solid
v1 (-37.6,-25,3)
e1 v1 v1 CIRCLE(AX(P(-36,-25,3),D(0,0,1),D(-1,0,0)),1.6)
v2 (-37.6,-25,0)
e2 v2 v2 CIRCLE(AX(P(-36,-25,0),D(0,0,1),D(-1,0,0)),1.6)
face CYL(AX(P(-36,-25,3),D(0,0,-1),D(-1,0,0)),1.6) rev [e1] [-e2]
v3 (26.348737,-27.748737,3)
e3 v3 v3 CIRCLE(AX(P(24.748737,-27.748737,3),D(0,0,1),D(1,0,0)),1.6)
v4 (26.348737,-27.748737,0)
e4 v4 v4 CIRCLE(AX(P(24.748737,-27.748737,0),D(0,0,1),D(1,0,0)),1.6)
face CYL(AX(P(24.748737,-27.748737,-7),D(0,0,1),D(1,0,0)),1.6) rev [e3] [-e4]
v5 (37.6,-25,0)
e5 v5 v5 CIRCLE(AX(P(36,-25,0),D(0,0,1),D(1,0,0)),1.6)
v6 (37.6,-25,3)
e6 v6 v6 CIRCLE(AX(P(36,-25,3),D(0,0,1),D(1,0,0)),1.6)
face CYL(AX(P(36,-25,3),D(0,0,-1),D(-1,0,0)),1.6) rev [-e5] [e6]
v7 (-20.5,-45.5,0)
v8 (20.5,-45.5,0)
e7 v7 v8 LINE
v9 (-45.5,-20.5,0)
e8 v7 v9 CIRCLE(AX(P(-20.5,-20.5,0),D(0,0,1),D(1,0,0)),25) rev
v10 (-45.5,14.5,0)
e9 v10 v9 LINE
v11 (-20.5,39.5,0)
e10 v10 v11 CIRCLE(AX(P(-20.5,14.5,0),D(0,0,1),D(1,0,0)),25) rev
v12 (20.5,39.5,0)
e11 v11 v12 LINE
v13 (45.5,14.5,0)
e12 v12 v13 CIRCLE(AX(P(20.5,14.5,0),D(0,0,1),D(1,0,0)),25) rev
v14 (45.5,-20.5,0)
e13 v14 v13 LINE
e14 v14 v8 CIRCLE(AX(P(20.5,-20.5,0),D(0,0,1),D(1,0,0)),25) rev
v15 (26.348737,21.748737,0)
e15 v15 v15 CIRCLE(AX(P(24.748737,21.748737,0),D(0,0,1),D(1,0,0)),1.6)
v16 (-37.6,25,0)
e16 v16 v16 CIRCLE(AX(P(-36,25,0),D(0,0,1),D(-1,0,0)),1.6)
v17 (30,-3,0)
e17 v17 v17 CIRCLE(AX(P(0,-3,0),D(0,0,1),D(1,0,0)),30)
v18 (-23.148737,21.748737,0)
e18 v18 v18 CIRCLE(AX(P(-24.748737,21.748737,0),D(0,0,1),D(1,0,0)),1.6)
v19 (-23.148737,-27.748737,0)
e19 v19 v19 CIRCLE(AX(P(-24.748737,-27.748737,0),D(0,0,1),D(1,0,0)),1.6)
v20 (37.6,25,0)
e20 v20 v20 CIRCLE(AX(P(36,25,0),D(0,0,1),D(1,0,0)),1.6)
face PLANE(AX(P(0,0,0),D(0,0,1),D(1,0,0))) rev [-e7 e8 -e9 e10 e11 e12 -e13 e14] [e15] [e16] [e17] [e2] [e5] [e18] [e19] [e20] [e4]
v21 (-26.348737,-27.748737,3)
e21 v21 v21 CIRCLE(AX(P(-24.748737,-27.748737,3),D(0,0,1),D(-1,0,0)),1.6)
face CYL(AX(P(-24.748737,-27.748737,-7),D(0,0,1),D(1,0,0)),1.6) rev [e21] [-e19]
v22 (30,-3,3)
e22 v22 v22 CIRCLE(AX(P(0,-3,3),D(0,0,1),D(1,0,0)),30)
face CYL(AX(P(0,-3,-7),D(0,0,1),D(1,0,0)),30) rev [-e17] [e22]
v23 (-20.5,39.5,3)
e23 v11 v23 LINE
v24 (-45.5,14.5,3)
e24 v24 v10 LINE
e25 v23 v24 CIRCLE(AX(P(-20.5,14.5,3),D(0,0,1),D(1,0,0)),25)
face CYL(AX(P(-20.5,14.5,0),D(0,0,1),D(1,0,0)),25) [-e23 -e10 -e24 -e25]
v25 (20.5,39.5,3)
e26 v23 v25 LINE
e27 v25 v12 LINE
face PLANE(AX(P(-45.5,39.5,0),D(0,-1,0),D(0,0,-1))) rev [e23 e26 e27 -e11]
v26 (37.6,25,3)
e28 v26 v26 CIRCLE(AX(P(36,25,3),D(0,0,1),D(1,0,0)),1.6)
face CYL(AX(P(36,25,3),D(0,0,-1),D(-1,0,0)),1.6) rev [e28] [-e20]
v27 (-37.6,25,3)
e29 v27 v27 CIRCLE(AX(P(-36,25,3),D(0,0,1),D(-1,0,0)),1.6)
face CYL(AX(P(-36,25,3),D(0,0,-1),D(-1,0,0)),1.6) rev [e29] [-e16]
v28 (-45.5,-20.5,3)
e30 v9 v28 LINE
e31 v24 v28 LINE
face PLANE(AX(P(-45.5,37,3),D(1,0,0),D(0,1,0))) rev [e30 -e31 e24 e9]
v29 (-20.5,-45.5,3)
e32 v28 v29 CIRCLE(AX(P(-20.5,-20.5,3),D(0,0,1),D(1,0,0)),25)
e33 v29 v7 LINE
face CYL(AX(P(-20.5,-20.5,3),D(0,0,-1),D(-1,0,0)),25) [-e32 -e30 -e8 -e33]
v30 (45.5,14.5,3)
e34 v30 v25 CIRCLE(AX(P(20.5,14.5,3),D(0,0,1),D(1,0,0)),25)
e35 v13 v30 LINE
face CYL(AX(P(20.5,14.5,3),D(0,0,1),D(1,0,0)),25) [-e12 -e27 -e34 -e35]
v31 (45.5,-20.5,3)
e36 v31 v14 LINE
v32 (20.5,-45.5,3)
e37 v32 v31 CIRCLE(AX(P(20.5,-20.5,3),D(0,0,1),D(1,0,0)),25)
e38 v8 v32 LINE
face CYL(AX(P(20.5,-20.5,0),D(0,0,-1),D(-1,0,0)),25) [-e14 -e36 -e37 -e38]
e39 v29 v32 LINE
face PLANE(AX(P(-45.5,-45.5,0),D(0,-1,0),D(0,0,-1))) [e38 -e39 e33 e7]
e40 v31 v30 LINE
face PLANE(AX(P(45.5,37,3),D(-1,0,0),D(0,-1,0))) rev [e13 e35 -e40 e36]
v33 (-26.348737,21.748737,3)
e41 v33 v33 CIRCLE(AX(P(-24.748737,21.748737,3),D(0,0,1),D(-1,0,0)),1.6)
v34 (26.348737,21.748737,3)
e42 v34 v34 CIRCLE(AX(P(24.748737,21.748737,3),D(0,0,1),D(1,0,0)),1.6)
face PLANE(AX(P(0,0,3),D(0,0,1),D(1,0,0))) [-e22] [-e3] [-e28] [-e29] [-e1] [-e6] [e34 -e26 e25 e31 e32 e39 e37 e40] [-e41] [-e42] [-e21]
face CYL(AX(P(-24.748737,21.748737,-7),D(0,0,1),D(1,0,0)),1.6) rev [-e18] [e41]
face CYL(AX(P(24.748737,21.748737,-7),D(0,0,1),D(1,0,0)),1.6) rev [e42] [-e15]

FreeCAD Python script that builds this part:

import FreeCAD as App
import Part
import Sketcher
Q = App.Units.Quantity


def edges_at(feature, points):
    """Names of the edges that pass closest to the given points."""
    edges = feature.Shape.Edges
    near = lambda p: min(range(len(edges)), key=lambda i: edges[i].distToShape(Part.Vertex(*p))[0])
    return sorted({f"Edge{near(p) + 1}" for p in points})


def add_polygon(sketch, points):
    """Adds a closed chain of lines whose ends are joined by coincident constraints."""
    first, n = sketch.GeometryCount, len(points)
    for a, b in zip(points, points[1:] + points[:1]):
        sketch.addGeometry(Part.LineSegment(App.Vector(*a, 0), App.Vector(*b, 0)), False)
    for i in range(n):
        sketch.addConstraint(Sketcher.Constraint("Coincident", first + i, 2, first + (i + 1) % n, 1))

doc = App.newDocument("Part")
params = doc.addObject("Spreadsheet::Sheet", "Params")
for row, (alias, value) in enumerate([
    ("sketch1_diameter", "3.2 mm"),
    ("sketch1_width", "91 mm"),
    ("sketch1_height", "74 mm"),
    ("pad1_length", "3 mm"),
    ("sketch2_diameter", "60 mm"),
    ("sketch2_diameter2", "3.2 mm"),
    ("pocket1_length", "10 mm"),
    ("sketch3_width", "91 mm"),
    ("sketch3_height", "6 mm"),
    ("pocket2_length", "10 mm"),
    ("sketch4_width", "91 mm"),
    ("sketch4_height", "8.5 mm"),
    ("sketch4_height2", "14.5 mm"),
    ("pad2_length", "3 mm"),
    ("sketch5_width", "91 mm"),
    ("sketch5_height", "6 mm"),
    ("pocket3_length", "3 mm"),
    ("fillet_radius", "25 mm"),
], start=1):
    params.set(f"A{row}", alias)
    params.set(f"B{row}", "=" + value)
    params.setAlias(f"B{row}", alias)

body = doc.addObject("PartDesign::Body", "Body")

# Sketch on XY plane
sketch1 = doc.addObject("Sketcher::SketchObject", "Sketch")
body.addObject(sketch1)
sketch1.AttachmentSupport = (doc.XY_Plane, [""])
sketch1.MapMode = "FlatFace"
add_polygon(sketch1, [(-45.5, 37), (-45.5, -37), (45.5, -37), (45.5, 37)])  # lines 0-3
sketch1.addGeometry(Part.Circle(App.Vector(-36, -25, 0), App.Vector(0, 0, 1), 1.6), False)  # 4
sketch1.addGeometry(Part.Circle(App.Vector(36, -25, 0), App.Vector(0, 0, 1), 1.6), False)  # 5
sketch1.addGeometry(Part.Circle(App.Vector(-36, 25, 0), App.Vector(0, 0, 1), 1.6), False)  # 6
sketch1.addGeometry(Part.Circle(App.Vector(36, 25, 0), App.Vector(0, 0, 1), 1.6), False)  # 7
sketch1.addConstraint([
    Sketcher.Constraint("Vertical", 0),
    Sketcher.Constraint("Horizontal", 1),
    Sketcher.Constraint("Vertical", 2),
    Sketcher.Constraint("Horizontal", 3),
    Sketcher.Constraint("Equal", 4, 5),
    Sketcher.Constraint("Equal", 5, 6),
    Sketcher.Constraint("Equal", 6, 7),
    Sketcher.Constraint("Symmetric", 5, 3, 6, 3, -1, 1),
    Sketcher.Constraint("Symmetric", 4, 3, 7, 3, -1, 1),
    Sketcher.Constraint("Symmetric", 0, 2, 2, 2, -1, 1),
    Sketcher.Constraint("Symmetric", 4, 3, 5, 3, -2),
    Sketcher.Constraint("Diameter", 4, Q("3.2 mm")),
    Sketcher.Constraint("DistanceX", 1, 1, 1, 2, Q("91 mm")),
    Sketcher.Constraint("DistanceY", 0, 2, 0, 1, Q("74 mm")),
    Sketcher.Constraint("DistanceX", 4, 3, -1, 1, Q("36 mm")),
    Sketcher.Constraint("DistanceY", 4, 3, -1, 1, Q("25 mm")),
])
sketch1.setExpression("Constraints[15]", "Params.sketch1_diameter")
sketch1.setExpression("Constraints[16]", "Params.sketch1_width")
sketch1.setExpression("Constraints[17]", "Params.sketch1_height")
pad1 = doc.addObject("PartDesign::Pad", "Pad")
body.addObject(pad1)
pad1.Profile = sketch1
pad1.setExpression("Length", "Params.pad1_length")

# Sketch on XY plane
sketch2 = doc.addObject("Sketcher::SketchObject", "Sketch001")
body.addObject(sketch2)
sketch2.AttachmentSupport = (doc.XY_Plane, [""])
sketch2.MapMode = "FlatFace"
sketch2.AttachmentOffset = App.Placement(App.Vector(0, 0, 3), App.Rotation())
sketch2.addGeometry([
    Part.Circle(App.Vector(0, -3, 0), App.Vector(0, 0, 1), 30),  # 0
    Part.Circle(App.Vector(24.748737, -27.748737, 0), App.Vector(0, 0, 1), 1.6),  # 1
    Part.Circle(App.Vector(24.748737, 21.748737, 0), App.Vector(0, 0, 1), 1.6),  # 2
    Part.Circle(App.Vector(-24.748737, -27.748737, 0), App.Vector(0, 0, 1), 1.6),  # 3
    Part.Circle(App.Vector(-24.748737, 21.748737, 0), App.Vector(0, 0, 1), 1.6),  # 4
], False)
sketch2.addConstraint([
    Sketcher.Constraint("Equal", 1, 2),
    Sketcher.Constraint("Equal", 2, 3),
    Sketcher.Constraint("Equal", 3, 4),
    Sketcher.Constraint("Symmetric", 1, 3, 3, 3, -2),
    Sketcher.Constraint("Symmetric", 2, 3, 4, 3, -2),
    Sketcher.Constraint("PointOnObject", 0, 3, -2),
    Sketcher.Constraint("Vertical", 1, 3, 2, 3),
    Sketcher.Constraint("Diameter", 0, Q("60 mm")),
    Sketcher.Constraint("Diameter", 1, Q("3.2 mm")),
    Sketcher.Constraint("DistanceY", 0, 3, -1, 1, Q("3 mm")),
    Sketcher.Constraint("DistanceX", -1, 1, 1, 3, Q("24.748737 mm")),
    Sketcher.Constraint("DistanceY", 1, 3, -1, 1, Q("27.748737 mm")),
    Sketcher.Constraint("DistanceY", -1, 1, 2, 3, Q("21.748737 mm")),
])
sketch2.setExpression("Constraints[7]", "Params.sketch2_diameter")
sketch2.setExpression("Constraints[8]", "Params.sketch2_diameter2")
pocket1 = doc.addObject("PartDesign::Pocket", "Pocket")
body.addObject(pocket1)
pocket1.Profile = sketch2
pocket1.setExpression("Length", "Params.pocket1_length")

# Sketch on XY plane
sketch3 = doc.addObject("Sketcher::SketchObject", "Sketch002")
body.addObject(sketch3)
sketch3.AttachmentSupport = (doc.XY_Plane, [""])
sketch3.MapMode = "FlatFace"
sketch3.AttachmentOffset = App.Placement(App.Vector(0, 0, 3), App.Rotation())
add_polygon(sketch3, [(-45.5, 37), (-45.5, 31), (45.5, 31), (45.5, 37)])  # lines 0-3
sketch3.addConstraint([
    Sketcher.Constraint("Vertical", 0),
    Sketcher.Constraint("Horizontal", 1),
    Sketcher.Constraint("Vertical", 2),
    Sketcher.Constraint("Horizontal", 3),
    Sketcher.Constraint("DistanceX", 1, 1, 1, 2, Q("91 mm")),
    Sketcher.Constraint("DistanceY", 0, 2, 0, 1, Q("6 mm")),
    Sketcher.Constraint("DistanceY", -1, 1, 0, 2, Q("31 mm")),
    Sketcher.Constraint("DistanceX", 0, 2, -1, 1, Q("45.5 mm")),
])
sketch3.setExpression("Constraints[8]", "Params.sketch3_width")
sketch3.setExpression("Constraints[9]", "Params.sketch3_height")
pocket2 = doc.addObject("PartDesign::Pocket", "Pocket001")
body.addObject(pocket2)
pocket2.Profile = sketch3
pocket2.setExpression("Length", "Params.pocket2_length")

# Sketch on XY plane
sketch4 = doc.addObject("Sketcher::SketchObject", "Sketch003")
body.addObject(sketch4)
sketch4.AttachmentSupport = (doc.XY_Plane, [""])
sketch4.MapMode = "FlatFace"
sketch4.AttachmentOffset = App.Placement(App.Vector(0, 0, 3), App.Rotation())
add_polygon(sketch4, [(-45.5, -37), (-45.5, -45.5), (45.5, -45.5), (45.5, -37)])  # lines 0-3
add_polygon(sketch4, [(-45.5, 45.5), (-45.5, 31), (45.5, 31), (45.5, 45.5)])  # lines 4-7
sketch4.addConstraint([
    Sketcher.Constraint("Vertical", 0),
    Sketcher.Constraint("Horizontal", 1),
    Sketcher.Constraint("Vertical", 2),
    Sketcher.Constraint("Horizontal", 3),
    Sketcher.Constraint("Vertical", 4),
    Sketcher.Constraint("Horizontal", 5),
    Sketcher.Constraint("Vertical", 6),
    Sketcher.Constraint("Horizontal", 7),
    Sketcher.Constraint("Symmetric", 0, 2, 6, 2, -1, 1),
    Sketcher.Constraint("Vertical", 3, 2, 4, 2),
    Sketcher.Constraint("Vertical", 2, 2, 5, 2),
    Sketcher.Constraint("DistanceX", 1, 1, 1, 2, Q("91 mm")),
    Sketcher.Constraint("DistanceY", 0, 2, 0, 1, Q("8.5 mm")),
    Sketcher.Constraint("DistanceY", 4, 2, 4, 1, Q("14.5 mm")),
    Sketcher.Constraint("DistanceY", 2, 2, -1, 1, Q("37 mm")),
])
sketch4.setExpression("Constraints[19]", "Params.sketch4_width")
sketch4.setExpression("Constraints[20]", "Params.sketch4_height")
sketch4.setExpression("Constraints[21]", "Params.sketch4_height2")
pad2 = doc.addObject("PartDesign::Pad", "Pad001")
body.addObject(pad2)
pad2.Profile = sketch4
pad2.setExpression("Length", "Params.pad2_length")
pad2.Reversed = True

# Sketch on XY plane
sketch5 = doc.addObject("Sketcher::SketchObject", "Sketch004")
body.addObject(sketch5)
sketch5.AttachmentSupport = (doc.XY_Plane, [""])
sketch5.MapMode = "FlatFace"
sketch5.AttachmentOffset = App.Placement(App.Vector(0, 0, 3), App.Rotation())
add_polygon(sketch5, [(-45.5, 45.5), (-45.5, 39.5), (45.5, 39.5), (45.5, 45.5)])  # lines 0-3
sketch5.addConstraint([
    Sketcher.Constraint("Vertical", 0),
    Sketcher.Constraint("Horizontal", 1),
    Sketcher.Constraint("Vertical", 2),
    Sketcher.Constraint("Horizontal", 3),
    Sketcher.Constraint("DistanceX", 1, 1, 1, 2, Q("91 mm")),
    Sketcher.Constraint("DistanceY", 0, 2, 0, 1, Q("6 mm")),
    Sketcher.Constraint("DistanceX", 0, 2, -1, 1, Q("45.5 mm")),
    Sketcher.Constraint("DistanceY", -1, 1, 0, 2, Q("39.5 mm")),
])
sketch5.setExpression("Constraints[8]", "Params.sketch5_width")
sketch5.setExpression("Constraints[9]", "Params.sketch5_height")
pocket3 = doc.addObject("PartDesign::Pocket", "Pocket002")
body.addObject(pocket3)
pocket3.Profile = sketch5
pocket3.setExpression("Length", "Params.pocket3_length")
doc.recompute()

fillet = doc.addObject("PartDesign::Fillet", "Fillet")
body.addObject(fillet)
fillet.Base = (pocket3, edges_at(pocket3, [
    (-45.5, 39.5, 1.5),
    (45.5, 39.5, 1.5),
    (-45.5, -45.5, 1.5),
    (45.5, -45.5, 1.5),
]))
fillet.setExpression("Radius", "Params.fillet_radius")

doc.recompute()
